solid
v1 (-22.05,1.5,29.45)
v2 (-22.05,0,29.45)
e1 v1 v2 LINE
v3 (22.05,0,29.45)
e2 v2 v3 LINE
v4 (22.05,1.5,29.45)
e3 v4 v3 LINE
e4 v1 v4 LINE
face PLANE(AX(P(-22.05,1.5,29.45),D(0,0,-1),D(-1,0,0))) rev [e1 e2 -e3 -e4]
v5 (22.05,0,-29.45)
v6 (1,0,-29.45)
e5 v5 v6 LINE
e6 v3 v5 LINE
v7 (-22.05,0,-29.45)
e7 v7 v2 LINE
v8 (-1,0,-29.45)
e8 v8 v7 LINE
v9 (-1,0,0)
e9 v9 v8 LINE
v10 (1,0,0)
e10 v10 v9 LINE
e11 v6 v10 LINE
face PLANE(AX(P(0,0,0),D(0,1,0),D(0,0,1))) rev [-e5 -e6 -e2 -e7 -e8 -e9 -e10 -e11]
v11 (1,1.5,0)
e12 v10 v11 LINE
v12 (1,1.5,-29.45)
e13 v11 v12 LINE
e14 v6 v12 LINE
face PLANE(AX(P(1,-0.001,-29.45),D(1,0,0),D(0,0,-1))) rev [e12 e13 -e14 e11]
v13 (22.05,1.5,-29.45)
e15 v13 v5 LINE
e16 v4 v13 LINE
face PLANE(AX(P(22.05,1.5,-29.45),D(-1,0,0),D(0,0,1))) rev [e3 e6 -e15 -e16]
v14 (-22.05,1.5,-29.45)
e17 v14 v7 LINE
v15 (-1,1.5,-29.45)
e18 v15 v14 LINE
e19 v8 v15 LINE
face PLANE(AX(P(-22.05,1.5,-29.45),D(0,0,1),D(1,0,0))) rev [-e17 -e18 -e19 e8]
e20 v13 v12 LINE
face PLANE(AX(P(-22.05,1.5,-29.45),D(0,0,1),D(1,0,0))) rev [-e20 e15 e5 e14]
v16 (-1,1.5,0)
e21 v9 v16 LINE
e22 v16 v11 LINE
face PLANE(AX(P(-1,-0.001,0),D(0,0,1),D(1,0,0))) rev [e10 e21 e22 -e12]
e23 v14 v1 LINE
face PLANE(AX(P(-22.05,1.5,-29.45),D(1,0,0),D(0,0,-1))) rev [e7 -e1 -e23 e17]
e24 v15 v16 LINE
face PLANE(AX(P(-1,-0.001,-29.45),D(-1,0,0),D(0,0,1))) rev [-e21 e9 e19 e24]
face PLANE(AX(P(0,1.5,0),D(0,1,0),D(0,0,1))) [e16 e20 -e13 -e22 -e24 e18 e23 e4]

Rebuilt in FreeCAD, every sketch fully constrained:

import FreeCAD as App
import Part
import Sketcher
Q = App.Units.Quantity

doc = App.newDocument("Part")
body = doc.addObject("PartDesign::Body", "Body")

sketch1 = body.newObject("Sketcher::SketchObject", "Sketch")
sketch1.AttachmentSupport = (doc.getObject("XZ_Plane"), [""])
sketch1.MapMode = "FlatFace"
sketch1.addGeometry(Part.LineSegment(App.Vector(-22.05, -29.45, 0), App.Vector(-22.05, 29.45, 0)), False)
sketch1.addGeometry(Part.LineSegment(App.Vector(-22.05, 29.45, 0), App.Vector(22.05, 29.45, 0)), False)
sketch1.addGeometry(Part.LineSegment(App.Vector(22.05, 29.45, 0), App.Vector(22.05, -29.45, 0)), False)
sketch1.addGeometry(Part.LineSegment(App.Vector(22.05, -29.45, 0), App.Vector(-22.05, -29.45, 0)), False)
sketch1.addConstraint(Sketcher.Constraint("Coincident", 0, 2, 1, 1))
sketch1.addConstraint(Sketcher.Constraint("Coincident", 1, 2, 2, 1))
sketch1.addConstraint(Sketcher.Constraint("Coincident", 2, 2, 3, 1))
sketch1.addConstraint(Sketcher.Constraint("Coincident", 3, 2, 0, 1))
sketch1.addConstraint(Sketcher.Constraint("Vertical", 0))
sketch1.addConstraint(Sketcher.Constraint("Horizontal", 1))
sketch1.addConstraint(Sketcher.Constraint("Vertical", 2))
sketch1.addConstraint(Sketcher.Constraint("Horizontal", 3))
sketch1.addConstraint(Sketcher.Constraint("Symmetric", 0, 2, 2, 2, -1, 1))
sketch1.addConstraint(Sketcher.Constraint("DistanceX", 1, 1, 1, 2, Q("44.1 mm")))
sketch1.addConstraint(Sketcher.Constraint("DistanceY", 0, 1, 0, 2, Q("58.9 mm")))
pad1 = body.newObject("PartDesign::Pad", "Pad")
pad1.Profile = sketch1
pad1.Length = 1.5
pad1.Reversed = True

sketch2 = body.newObject("Sketcher::SketchObject", "Sketch001")
sketch2.AttachmentSupport = (doc.getObject("XZ_Plane"), [""])
sketch2.MapMode = "FlatFace"
sketch2.AttachmentOffset = App.Placement(App.Vector(0, 0, -1.5), App.Rotation())
sketch2.addGeometry(Part.LineSegment(App.Vector(-1, -29.45, 0), App.Vector(-1, 0, 0)), False)
sketch2.addGeometry(Part.LineSegment(App.Vector(-1, 0, 0), App.Vector(1, 0, 0)), False)
sketch2.addGeometry(Part.LineSegment(App.Vector(1, 0, 0), App.Vector(1, -29.45, 0)), False)
sketch2.addGeometry(Part.LineSegment(App.Vector(1, -29.45, 0), App.Vector(-1, -29.45, 0)), False)
sketch2.addConstraint(Sketcher.Constraint("Coincident", 0, 2, 1, 1))
sketch2.addConstraint(Sketcher.Constraint("Coincident", 1, 2, 2, 1))
sketch2.addConstraint(Sketcher.Constraint("Coincident", 2, 2, 3, 1))
sketch2.addConstraint(Sketcher.Constraint("Coincident", 3, 2, 0, 1))
sketch2.addConstraint(Sketcher.Constraint("Vertical", 0))
sketch2.addConstraint(Sketcher.Constraint("Horizontal", 1))
sketch2.addConstraint(Sketcher.Constraint("Vertical", 2))
sketch2.addConstraint(Sketcher.Constraint("Horizontal", 3))
sketch2.addConstraint(Sketcher.Constraint("Symmetric", 0, 2, 1, 2, -1, 1))
sketch2.addConstraint(Sketcher.Constraint("DistanceX", 1, 1, 1, 2, Q("2 mm")))
sketch2.addConstraint(Sketcher.Constraint("DistanceY", 0, 1, 0, 2, Q("29.45 mm")))
pocket1 = body.newObject("PartDesign::Pocket", "Pocket")
pocket1.Profile = sketch2
pocket1.Type = "UpToFirst"
pocket1.Reversed = True

doc.recompute()
